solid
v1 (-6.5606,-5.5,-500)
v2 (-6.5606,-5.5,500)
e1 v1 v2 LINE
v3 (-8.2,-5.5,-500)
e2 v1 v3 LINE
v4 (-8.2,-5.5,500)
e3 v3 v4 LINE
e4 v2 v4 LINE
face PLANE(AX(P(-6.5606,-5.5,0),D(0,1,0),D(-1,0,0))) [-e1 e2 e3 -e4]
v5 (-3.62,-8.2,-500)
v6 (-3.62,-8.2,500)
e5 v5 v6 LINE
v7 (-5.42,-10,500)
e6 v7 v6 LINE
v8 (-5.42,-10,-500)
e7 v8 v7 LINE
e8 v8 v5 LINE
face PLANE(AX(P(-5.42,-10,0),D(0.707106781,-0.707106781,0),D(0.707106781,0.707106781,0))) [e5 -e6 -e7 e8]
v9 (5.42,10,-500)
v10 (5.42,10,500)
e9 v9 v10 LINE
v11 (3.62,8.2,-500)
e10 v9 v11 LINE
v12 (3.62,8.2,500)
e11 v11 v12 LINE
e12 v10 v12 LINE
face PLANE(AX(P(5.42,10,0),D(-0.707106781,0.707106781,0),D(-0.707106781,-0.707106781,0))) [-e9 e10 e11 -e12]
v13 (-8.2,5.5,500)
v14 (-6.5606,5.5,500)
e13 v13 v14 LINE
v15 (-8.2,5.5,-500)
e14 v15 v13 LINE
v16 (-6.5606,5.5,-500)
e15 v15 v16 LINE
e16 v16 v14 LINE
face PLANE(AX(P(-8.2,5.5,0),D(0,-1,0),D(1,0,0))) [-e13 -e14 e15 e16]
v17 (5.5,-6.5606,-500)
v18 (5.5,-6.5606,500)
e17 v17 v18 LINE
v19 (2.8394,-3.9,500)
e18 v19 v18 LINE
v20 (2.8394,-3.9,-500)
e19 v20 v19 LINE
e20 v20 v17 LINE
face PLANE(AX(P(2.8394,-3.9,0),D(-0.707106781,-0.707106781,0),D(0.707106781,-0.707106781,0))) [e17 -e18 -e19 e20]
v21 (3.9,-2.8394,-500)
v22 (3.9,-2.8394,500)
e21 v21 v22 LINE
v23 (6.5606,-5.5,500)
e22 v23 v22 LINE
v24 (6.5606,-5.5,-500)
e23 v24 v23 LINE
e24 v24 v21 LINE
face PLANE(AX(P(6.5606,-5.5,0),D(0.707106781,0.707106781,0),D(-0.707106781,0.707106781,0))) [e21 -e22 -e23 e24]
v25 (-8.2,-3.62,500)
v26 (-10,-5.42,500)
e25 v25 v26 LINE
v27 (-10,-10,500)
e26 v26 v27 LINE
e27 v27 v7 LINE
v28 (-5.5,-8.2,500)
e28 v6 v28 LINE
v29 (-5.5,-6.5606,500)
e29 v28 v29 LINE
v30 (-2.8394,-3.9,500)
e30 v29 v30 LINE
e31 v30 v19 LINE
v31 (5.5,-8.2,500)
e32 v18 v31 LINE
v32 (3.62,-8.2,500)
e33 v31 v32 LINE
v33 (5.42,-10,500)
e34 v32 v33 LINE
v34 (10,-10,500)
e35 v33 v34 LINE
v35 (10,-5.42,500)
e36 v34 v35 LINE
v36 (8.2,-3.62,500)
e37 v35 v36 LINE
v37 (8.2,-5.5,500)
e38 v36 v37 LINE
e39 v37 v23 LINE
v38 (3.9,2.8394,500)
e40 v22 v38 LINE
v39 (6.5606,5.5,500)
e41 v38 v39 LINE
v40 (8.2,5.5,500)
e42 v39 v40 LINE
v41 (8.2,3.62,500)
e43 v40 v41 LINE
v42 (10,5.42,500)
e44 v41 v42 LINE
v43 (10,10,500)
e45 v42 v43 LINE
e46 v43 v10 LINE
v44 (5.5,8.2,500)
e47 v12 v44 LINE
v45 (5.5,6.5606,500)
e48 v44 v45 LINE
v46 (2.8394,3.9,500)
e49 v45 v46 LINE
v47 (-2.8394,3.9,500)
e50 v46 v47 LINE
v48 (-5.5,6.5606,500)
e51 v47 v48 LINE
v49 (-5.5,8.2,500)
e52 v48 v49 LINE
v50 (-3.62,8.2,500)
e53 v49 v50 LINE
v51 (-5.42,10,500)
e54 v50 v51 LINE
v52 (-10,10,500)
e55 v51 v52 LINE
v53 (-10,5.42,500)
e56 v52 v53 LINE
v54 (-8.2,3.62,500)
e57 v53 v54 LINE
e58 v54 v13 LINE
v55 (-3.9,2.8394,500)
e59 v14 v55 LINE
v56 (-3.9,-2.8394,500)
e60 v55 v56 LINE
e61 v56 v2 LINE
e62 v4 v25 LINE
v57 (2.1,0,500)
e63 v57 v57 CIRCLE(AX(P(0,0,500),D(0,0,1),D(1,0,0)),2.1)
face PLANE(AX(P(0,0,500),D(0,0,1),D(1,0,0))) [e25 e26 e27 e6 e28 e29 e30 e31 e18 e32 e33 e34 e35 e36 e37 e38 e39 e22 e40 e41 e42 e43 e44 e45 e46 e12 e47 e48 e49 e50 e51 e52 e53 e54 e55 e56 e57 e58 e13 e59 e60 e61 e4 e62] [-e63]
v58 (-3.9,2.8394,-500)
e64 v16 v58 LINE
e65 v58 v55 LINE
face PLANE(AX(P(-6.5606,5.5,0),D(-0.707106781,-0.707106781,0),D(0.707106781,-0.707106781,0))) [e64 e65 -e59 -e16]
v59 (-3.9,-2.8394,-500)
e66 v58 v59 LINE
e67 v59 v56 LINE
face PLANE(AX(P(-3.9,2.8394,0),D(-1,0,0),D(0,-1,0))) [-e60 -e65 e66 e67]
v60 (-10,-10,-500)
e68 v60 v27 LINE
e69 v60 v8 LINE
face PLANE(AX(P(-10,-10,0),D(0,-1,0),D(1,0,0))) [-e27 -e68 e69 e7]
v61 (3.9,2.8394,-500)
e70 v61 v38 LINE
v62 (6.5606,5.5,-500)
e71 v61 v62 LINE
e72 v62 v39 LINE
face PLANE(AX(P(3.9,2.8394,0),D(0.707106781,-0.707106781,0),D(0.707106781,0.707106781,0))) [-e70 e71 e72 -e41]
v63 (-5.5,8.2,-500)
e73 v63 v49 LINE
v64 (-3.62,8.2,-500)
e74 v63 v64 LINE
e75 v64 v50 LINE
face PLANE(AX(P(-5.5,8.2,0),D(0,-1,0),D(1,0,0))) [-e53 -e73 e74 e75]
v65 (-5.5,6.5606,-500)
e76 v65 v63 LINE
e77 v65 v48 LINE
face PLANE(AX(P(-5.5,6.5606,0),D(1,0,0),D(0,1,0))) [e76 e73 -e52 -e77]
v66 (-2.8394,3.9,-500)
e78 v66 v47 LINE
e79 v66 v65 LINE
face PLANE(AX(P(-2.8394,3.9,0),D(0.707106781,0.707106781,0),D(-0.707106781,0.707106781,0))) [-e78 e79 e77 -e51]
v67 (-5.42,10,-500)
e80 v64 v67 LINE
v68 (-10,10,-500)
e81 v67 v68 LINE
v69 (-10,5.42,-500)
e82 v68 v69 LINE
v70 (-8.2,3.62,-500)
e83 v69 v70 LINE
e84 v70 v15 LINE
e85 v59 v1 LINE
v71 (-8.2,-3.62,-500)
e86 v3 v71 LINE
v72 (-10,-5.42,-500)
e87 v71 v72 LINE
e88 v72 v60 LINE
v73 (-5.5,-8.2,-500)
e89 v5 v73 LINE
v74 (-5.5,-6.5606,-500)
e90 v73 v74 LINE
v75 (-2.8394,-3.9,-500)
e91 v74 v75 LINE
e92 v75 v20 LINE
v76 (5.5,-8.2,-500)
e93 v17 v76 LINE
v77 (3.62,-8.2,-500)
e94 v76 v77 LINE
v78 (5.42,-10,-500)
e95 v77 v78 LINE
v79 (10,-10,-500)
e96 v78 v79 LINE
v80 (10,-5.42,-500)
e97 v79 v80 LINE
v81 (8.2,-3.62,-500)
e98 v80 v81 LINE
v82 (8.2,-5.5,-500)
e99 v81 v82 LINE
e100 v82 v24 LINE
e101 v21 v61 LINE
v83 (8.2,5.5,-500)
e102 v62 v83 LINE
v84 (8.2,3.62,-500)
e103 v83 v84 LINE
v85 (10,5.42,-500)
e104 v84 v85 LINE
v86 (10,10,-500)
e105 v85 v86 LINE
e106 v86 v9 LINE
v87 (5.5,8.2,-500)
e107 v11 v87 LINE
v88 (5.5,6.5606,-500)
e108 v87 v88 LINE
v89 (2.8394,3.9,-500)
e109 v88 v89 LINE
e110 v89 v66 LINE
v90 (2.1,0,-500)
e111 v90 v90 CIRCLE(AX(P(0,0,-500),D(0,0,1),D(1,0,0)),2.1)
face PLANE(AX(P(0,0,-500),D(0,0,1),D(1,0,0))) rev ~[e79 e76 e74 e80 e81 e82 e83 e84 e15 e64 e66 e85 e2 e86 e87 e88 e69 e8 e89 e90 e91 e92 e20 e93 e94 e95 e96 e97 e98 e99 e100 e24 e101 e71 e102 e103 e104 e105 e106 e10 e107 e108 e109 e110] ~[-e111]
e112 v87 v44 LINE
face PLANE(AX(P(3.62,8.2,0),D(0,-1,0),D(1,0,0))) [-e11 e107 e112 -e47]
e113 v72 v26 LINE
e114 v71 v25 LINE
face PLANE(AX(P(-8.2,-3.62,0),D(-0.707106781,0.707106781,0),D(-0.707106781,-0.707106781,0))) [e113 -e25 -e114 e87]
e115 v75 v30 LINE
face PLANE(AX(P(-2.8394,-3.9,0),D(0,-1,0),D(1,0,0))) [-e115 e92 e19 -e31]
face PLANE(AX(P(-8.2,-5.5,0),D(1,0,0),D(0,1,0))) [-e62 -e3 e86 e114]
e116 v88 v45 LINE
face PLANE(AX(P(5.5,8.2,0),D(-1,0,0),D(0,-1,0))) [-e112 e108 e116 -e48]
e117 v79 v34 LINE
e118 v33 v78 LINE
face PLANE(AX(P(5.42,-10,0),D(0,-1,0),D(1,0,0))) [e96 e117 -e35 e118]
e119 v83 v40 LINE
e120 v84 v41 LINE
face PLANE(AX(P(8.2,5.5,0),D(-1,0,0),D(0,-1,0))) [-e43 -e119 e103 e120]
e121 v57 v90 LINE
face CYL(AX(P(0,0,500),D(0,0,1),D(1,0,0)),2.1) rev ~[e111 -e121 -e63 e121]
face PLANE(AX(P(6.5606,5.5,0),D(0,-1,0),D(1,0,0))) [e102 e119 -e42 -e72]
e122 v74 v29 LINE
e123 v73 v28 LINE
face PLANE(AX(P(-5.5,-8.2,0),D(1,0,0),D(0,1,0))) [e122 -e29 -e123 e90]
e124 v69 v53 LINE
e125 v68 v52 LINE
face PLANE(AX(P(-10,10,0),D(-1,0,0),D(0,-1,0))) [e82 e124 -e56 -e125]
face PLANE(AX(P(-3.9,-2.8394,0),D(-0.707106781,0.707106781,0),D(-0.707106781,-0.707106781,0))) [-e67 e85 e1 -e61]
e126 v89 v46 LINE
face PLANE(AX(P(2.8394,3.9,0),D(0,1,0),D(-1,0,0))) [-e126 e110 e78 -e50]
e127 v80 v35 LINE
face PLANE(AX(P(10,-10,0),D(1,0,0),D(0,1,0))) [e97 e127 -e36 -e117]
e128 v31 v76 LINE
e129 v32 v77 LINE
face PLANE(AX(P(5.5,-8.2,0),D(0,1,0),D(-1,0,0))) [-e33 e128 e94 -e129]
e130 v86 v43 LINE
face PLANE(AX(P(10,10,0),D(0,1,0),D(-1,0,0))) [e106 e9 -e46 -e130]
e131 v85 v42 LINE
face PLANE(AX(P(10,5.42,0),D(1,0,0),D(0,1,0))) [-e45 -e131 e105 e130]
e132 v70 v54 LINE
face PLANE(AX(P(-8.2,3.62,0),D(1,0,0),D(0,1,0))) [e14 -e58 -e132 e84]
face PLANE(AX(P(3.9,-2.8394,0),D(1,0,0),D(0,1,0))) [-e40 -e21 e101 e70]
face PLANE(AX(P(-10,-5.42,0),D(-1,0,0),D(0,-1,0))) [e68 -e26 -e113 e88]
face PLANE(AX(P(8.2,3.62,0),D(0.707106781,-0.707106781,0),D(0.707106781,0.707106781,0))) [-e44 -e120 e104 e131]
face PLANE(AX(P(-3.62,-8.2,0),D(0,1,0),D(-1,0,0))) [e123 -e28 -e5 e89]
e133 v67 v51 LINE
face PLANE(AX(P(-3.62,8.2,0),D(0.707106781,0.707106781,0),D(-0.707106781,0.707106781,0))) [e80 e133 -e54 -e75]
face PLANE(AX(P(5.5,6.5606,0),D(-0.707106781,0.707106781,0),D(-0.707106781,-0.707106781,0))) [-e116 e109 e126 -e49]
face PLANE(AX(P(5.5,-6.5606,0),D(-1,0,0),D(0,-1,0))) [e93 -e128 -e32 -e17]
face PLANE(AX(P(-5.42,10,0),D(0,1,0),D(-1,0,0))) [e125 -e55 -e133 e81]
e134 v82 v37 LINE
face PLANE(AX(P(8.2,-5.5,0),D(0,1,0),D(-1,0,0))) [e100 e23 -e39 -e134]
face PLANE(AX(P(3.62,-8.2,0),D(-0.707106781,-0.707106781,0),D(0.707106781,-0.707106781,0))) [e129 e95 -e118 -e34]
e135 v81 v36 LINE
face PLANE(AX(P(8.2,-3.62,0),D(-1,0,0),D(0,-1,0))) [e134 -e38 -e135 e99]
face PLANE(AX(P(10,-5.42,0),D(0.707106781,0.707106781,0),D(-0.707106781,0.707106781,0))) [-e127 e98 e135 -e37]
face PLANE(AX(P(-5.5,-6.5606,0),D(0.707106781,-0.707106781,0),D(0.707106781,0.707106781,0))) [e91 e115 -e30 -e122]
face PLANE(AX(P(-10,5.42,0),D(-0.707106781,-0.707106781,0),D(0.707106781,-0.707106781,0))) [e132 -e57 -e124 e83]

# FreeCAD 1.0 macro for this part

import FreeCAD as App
import Part
import Sketcher

V = App.Vector


def add_polygon(sketch, points):
    """Adds a closed chain of lines whose ends are joined by coincident constraints."""
    first, n = sketch.GeometryCount, len(points)
    for a, b in zip(points, points[1:] + points[:1]):
        sketch.addGeometry(Part.LineSegment(App.Vector(*a, 0), App.Vector(*b, 0)), False)
    for i in range(n):
        sketch.addConstraint(Sketcher.Constraint("Coincident", first + i, 2, first + (i + 1) % n, 1))

doc = App.newDocument("Part")
body = doc.addObject("PartDesign::Body", "Body")

# Sketch on XY plane
sketch1 = body.newObject("Sketcher::SketchObject", "Sketch")
sketch1.AttachmentSupport = (doc.getObject("XY_Plane"), [""])
sketch1.MapMode = "FlatFace"
add_polygon(sketch1, [(5.42, -10), (10, -10), (10, -5.42), (8.2, -3.62), (8.2, -5.5), (6.5606, -5.5), (3.9, -2.8394), (3.9, 2.8394), (6.5606, 5.5), (8.2, 5.5), (8.2, 3.62), (10, 5.42), (10, 10), (5.42, 10), (3.62, 8.2), (5.5, 8.2), (5.5, 6.5606), (2.8394, 3.9), (-2.8394, 3.9), (-5.5, 6.5606), (-5.5, 8.2), (-3.62, 8.2), (-5.42, 10), (-10, 10), (-10, 5.42), (-8.2, 3.62), (-8.2, 5.5), (-6.5606, 5.5), (-3.9, 2.8394), (-3.9, -2.8394), (-6.5606, -5.5), (-8.2, -5.5), (-8.2, -3.62), (-10, -5.42), (-10, -10), (-5.42, -10), (-3.62, -8.2), (-5.5, -8.2), (-5.5, -6.5606), (-2.8394, -3.9), (2.8394, -3.9), (5.5, -6.5606), (5.5, -8.2), (3.62, -8.2)])  # lines 0-43
sketch1.addConstraint([
    Sketcher.Constraint("Horizontal", 0),
    Sketcher.Constraint("Vertical", 1),
    Sketcher.Constraint("Vertical", 3),
    Sketcher.Constraint("Horizontal", 4),
    Sketcher.Constraint("Vertical", 6),
    Sketcher.Constraint("Horizontal", 8),
    Sketcher.Constraint("Vertical", 9),
    Sketcher.Constraint("Vertical", 11),
    Sketcher.Constraint("Horizontal", 12),
    Sketcher.Constraint("Horizontal", 14),
    Sketcher.Constraint("Vertical", 15),
    Sketcher.Constraint("Horizontal", 17),
    Sketcher.Constraint("Vertical", 19),
    Sketcher.Constraint("Horizontal", 20),
    Sketcher.Constraint("Horizontal", 22),
    Sketcher.Constraint("Vertical", 23),
    Sketcher.Constraint("Vertical", 25),
    Sketcher.Constraint("Horizontal", 26),
    Sketcher.Constraint("Vertical", 28),
    Sketcher.Constraint("Horizontal", 30),
    Sketcher.Constraint("Vertical", 31),
    Sketcher.Constraint("Vertical", 33),
    Sketcher.Constraint("Horizontal", 34),
    Sketcher.Constraint("Horizontal", 36),
    Sketcher.Constraint("Vertical", 37),
    Sketcher.Constraint("Horizontal", 39),
    Sketcher.Constraint("Vertical", 41),
    Sketcher.Constraint("Horizontal", 42),
    Sketcher.Constraint("Symmetric", 0, 2, 22, 2, -1, 1),
    Sketcher.Constraint("Symmetric", 2, 2, 24, 2, -1, 1),
    Sketcher.Constraint("Symmetric", 4, 2, 26, 2, -1, 1),
    Sketcher.Constraint("Symmetric", 5, 2, 27, 2, -1, 1),
    Sketcher.Constraint("Symmetric", 7, 2, 29, 2, -1, 1),
    Sketcher.Constraint("Symmetric", 9, 2, 31, 2, -1, 1),
    Sketcher.Constraint("Symmetric", 10, 2, 32, 2, -1, 1),
    Sketcher.Constraint("Symmetric", 12, 2, 34, 2, -1, 1),
    Sketcher.Constraint("Symmetric", 13, 2, 35, 2, -1, 1),
    Sketcher.Constraint("Symmetric", 15, 2, 37, 2, -1, 1),
    Sketcher.Constraint("Symmetric", 16, 2, 38, 2, -1, 1),
    Sketcher.Constraint("Symmetric", 18, 2, 40, 2, -1, 1),
    Sketcher.Constraint("Symmetric", 20, 2, 42, 2, -1, 1),
    Sketcher.Constraint("Symmetric", 15, 2, 18, 2, -2),
    Sketcher.Constraint("Symmetric", 13, 2, 20, 2, -2),
    Sketcher.Constraint("Symmetric", 12, 2, 21, 2, -2),
    Sketcher.Constraint("Symmetric", 10, 2, 23, 2, -2),
    Sketcher.Constraint("Symmetric", 9, 2, 24, 2, -2),
    Sketcher.Constraint("Symmetric", 7, 2, 26, 2, -2),
    Sketcher.Constraint("Parallel", 2, 5),
    Sketcher.Constraint("Perpendicular", 5, 7),
    Sketcher.Constraint("Parallel", 7, 10),
    Sketcher.Constraint("Parallel", 10, 13),
    Sketcher.Constraint("Parallel", 13, 16),
    Sketcher.Constraint("Perpendicular", 16, 18),
    Sketcher.Constraint("Parallel", 18, 21),
    Sketcher.Constraint("Perpendicular", 27, 29),
    Sketcher.Constraint("Perpendicular", 38, 40),
    Sketcher.Constraint("Parallel", 40, 43),
    Sketcher.Constraint("Equal", 34, 1),
    Sketcher.Constraint("Equal", 42, 3),
    Sketcher.Constraint("Equal", 39, 6),
    Sketcher.Constraint("Equal", 30, 15),
    Sketcher.Constraint("Equal", 10, 13),
    Sketcher.Constraint("Equal", 7, 16),
    Sketcher.Constraint("DistanceX", -1, 1, 0, 2, 10.0),
    Sketcher.Constraint("DistanceY", 4, 2, 7, 2, 11.0),
    Sketcher.Constraint("DistanceX", 0, 1, 0, 2, 4.58),
    Sketcher.Constraint("DistanceX", 14, 1, 14, 2, 1.88),
    Sketcher.Constraint("DistanceX", -1, 1, 5, 2, 3.9),
    Sketcher.Constraint("DistanceX", 4, 2, 4, 1, 1.6394),
])
pad1 = body.newObject("PartDesign::Pad", "Pad")
pad1.Profile = sketch1
pad1.Length = 1000
pad1.Midplane = True

# Sketch on XY plane
sketch2 = body.newObject("Sketcher::SketchObject", "Sketch001")
sketch2.AttachmentSupport = (doc.getObject("XY_Plane"), [""])
sketch2.MapMode = "FlatFace"
sketch2.AttachmentOffset = App.Placement(V(0, 0, 500), App.Rotation())
sketch2.addGeometry(Part.Circle(V(0, 0, 0), V(0, 0, 1), 2.1), False)
sketch2.addConstraint([
    Sketcher.Constraint("Coincident", 0, 3, -1, 1),
    Sketcher.Constraint("Diameter", 0, 4.2),
])
pocket1 = body.newObject("PartDesign::Pocket", "Pocket")
pocket1.Profile = sketch2
pocket1.Type = "ThroughAll"

doc.recompute()
